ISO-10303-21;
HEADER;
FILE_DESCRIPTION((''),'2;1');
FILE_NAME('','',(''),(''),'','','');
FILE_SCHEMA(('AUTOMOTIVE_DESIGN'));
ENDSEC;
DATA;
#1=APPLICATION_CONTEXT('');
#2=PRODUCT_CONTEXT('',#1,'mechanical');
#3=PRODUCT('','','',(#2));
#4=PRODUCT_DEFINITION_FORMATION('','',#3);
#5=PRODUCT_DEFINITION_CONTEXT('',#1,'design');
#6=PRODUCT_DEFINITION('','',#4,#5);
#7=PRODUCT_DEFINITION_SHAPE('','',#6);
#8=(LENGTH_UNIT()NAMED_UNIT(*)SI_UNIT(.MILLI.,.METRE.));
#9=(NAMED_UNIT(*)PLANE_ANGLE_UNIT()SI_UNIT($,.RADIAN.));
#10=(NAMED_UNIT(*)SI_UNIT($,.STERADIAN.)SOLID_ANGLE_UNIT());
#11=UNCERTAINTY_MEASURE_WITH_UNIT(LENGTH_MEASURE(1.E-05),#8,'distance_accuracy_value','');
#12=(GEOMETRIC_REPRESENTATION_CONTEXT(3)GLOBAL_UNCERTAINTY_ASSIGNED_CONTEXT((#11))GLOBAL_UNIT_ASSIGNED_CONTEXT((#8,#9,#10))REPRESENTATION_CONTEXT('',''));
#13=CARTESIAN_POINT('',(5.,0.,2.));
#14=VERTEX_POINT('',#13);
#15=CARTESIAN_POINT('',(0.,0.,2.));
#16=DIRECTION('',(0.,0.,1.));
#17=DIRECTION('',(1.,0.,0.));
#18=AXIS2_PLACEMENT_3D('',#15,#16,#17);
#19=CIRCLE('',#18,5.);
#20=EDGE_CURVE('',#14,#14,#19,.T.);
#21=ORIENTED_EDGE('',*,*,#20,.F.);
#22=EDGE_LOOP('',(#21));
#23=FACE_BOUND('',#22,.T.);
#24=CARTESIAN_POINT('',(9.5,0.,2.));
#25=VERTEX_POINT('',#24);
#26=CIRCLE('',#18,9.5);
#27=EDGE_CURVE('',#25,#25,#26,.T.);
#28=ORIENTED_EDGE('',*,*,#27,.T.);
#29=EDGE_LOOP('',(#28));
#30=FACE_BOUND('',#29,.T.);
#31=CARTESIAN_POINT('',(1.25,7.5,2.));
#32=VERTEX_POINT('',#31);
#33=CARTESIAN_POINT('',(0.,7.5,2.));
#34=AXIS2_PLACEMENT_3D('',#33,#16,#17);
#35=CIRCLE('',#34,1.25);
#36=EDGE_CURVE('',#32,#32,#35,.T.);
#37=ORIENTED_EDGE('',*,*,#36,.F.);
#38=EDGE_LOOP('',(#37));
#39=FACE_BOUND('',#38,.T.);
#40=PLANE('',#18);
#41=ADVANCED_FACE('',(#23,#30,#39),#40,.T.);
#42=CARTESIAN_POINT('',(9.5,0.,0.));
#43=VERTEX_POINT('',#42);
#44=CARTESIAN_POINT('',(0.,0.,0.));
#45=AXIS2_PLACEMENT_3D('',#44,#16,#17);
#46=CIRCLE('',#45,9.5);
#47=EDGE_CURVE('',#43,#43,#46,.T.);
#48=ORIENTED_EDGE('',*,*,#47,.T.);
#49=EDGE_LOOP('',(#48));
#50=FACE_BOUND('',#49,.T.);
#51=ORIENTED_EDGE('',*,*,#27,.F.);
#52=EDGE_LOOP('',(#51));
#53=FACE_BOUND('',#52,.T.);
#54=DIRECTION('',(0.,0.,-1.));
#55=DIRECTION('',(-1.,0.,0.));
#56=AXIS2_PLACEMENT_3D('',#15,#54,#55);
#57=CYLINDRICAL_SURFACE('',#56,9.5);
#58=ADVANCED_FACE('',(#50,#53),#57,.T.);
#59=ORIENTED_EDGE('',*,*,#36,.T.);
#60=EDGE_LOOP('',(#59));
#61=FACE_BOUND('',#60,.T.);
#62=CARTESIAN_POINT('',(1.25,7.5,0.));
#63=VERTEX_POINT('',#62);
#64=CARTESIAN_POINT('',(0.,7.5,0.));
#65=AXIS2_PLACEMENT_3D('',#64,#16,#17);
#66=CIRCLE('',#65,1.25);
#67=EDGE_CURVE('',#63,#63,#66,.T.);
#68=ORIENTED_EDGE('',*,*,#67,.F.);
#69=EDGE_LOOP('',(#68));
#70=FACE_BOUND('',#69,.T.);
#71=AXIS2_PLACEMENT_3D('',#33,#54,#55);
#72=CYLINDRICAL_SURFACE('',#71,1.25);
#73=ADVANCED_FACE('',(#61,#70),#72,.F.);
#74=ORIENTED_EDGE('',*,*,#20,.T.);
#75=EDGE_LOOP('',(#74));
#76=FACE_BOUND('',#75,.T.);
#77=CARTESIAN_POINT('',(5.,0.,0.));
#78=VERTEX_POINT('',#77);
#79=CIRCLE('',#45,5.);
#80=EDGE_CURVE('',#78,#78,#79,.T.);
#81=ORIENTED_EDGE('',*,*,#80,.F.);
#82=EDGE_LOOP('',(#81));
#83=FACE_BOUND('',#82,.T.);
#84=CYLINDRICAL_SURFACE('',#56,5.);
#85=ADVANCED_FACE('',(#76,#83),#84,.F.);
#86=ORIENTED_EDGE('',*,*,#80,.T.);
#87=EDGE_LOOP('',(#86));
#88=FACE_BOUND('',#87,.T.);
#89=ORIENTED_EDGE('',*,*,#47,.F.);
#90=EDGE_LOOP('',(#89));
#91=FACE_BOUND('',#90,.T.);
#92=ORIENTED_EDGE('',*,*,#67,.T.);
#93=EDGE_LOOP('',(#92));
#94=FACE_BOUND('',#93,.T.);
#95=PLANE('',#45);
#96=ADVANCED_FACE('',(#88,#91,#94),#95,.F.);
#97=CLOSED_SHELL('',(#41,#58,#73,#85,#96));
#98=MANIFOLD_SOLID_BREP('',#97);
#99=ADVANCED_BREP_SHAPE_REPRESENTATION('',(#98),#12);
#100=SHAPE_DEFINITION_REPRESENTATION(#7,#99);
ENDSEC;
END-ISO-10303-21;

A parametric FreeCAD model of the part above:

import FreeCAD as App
import Part
import Sketcher

doc = App.newDocument("Part")
body = doc.addObject("PartDesign::Body", "Body")

# Sketch on XY plane
sketch1 = body.newObject("Sketcher::SketchObject", "Sketch")
sketch1.AttachmentSupport = (doc.getObject("XY_Plane"), [""])
sketch1.MapMode = "FlatFace"
sketch1.addGeometry([
    Part.Circle(App.Vector(0, 0, 0), App.Vector(0, 0, 1), 9.5),
    Part.Circle(App.Vector(0, 0, 0), App.Vector(0, 0, 1), 5),
    Part.Circle(App.Vector(0, 7.5, 0), App.Vector(0, 0, 1), 1.2),
], False)
sketch1.addConstraint([
    Sketcher.Constraint("Coincident", 0, 3, -1, 1),
    Sketcher.Constraint("Coincident", 1, 3, -1, 1),
    Sketcher.Constraint("PointOnObject", 2, 3, -2),
    Sketcher.Constraint("Diameter", 0, 19.0),
    Sketcher.Constraint("Diameter", 1, 10.0),
    Sketcher.Constraint("Diameter", 2, 2.5),
    Sketcher.Constraint("DistanceY", -1, 1, 2, 3, 7.5),
])
pad1 = body.newObject("PartDesign::Pad", "Pad")
pad1.Profile = sketch1
pad1.Length = 2

doc.recompute()
